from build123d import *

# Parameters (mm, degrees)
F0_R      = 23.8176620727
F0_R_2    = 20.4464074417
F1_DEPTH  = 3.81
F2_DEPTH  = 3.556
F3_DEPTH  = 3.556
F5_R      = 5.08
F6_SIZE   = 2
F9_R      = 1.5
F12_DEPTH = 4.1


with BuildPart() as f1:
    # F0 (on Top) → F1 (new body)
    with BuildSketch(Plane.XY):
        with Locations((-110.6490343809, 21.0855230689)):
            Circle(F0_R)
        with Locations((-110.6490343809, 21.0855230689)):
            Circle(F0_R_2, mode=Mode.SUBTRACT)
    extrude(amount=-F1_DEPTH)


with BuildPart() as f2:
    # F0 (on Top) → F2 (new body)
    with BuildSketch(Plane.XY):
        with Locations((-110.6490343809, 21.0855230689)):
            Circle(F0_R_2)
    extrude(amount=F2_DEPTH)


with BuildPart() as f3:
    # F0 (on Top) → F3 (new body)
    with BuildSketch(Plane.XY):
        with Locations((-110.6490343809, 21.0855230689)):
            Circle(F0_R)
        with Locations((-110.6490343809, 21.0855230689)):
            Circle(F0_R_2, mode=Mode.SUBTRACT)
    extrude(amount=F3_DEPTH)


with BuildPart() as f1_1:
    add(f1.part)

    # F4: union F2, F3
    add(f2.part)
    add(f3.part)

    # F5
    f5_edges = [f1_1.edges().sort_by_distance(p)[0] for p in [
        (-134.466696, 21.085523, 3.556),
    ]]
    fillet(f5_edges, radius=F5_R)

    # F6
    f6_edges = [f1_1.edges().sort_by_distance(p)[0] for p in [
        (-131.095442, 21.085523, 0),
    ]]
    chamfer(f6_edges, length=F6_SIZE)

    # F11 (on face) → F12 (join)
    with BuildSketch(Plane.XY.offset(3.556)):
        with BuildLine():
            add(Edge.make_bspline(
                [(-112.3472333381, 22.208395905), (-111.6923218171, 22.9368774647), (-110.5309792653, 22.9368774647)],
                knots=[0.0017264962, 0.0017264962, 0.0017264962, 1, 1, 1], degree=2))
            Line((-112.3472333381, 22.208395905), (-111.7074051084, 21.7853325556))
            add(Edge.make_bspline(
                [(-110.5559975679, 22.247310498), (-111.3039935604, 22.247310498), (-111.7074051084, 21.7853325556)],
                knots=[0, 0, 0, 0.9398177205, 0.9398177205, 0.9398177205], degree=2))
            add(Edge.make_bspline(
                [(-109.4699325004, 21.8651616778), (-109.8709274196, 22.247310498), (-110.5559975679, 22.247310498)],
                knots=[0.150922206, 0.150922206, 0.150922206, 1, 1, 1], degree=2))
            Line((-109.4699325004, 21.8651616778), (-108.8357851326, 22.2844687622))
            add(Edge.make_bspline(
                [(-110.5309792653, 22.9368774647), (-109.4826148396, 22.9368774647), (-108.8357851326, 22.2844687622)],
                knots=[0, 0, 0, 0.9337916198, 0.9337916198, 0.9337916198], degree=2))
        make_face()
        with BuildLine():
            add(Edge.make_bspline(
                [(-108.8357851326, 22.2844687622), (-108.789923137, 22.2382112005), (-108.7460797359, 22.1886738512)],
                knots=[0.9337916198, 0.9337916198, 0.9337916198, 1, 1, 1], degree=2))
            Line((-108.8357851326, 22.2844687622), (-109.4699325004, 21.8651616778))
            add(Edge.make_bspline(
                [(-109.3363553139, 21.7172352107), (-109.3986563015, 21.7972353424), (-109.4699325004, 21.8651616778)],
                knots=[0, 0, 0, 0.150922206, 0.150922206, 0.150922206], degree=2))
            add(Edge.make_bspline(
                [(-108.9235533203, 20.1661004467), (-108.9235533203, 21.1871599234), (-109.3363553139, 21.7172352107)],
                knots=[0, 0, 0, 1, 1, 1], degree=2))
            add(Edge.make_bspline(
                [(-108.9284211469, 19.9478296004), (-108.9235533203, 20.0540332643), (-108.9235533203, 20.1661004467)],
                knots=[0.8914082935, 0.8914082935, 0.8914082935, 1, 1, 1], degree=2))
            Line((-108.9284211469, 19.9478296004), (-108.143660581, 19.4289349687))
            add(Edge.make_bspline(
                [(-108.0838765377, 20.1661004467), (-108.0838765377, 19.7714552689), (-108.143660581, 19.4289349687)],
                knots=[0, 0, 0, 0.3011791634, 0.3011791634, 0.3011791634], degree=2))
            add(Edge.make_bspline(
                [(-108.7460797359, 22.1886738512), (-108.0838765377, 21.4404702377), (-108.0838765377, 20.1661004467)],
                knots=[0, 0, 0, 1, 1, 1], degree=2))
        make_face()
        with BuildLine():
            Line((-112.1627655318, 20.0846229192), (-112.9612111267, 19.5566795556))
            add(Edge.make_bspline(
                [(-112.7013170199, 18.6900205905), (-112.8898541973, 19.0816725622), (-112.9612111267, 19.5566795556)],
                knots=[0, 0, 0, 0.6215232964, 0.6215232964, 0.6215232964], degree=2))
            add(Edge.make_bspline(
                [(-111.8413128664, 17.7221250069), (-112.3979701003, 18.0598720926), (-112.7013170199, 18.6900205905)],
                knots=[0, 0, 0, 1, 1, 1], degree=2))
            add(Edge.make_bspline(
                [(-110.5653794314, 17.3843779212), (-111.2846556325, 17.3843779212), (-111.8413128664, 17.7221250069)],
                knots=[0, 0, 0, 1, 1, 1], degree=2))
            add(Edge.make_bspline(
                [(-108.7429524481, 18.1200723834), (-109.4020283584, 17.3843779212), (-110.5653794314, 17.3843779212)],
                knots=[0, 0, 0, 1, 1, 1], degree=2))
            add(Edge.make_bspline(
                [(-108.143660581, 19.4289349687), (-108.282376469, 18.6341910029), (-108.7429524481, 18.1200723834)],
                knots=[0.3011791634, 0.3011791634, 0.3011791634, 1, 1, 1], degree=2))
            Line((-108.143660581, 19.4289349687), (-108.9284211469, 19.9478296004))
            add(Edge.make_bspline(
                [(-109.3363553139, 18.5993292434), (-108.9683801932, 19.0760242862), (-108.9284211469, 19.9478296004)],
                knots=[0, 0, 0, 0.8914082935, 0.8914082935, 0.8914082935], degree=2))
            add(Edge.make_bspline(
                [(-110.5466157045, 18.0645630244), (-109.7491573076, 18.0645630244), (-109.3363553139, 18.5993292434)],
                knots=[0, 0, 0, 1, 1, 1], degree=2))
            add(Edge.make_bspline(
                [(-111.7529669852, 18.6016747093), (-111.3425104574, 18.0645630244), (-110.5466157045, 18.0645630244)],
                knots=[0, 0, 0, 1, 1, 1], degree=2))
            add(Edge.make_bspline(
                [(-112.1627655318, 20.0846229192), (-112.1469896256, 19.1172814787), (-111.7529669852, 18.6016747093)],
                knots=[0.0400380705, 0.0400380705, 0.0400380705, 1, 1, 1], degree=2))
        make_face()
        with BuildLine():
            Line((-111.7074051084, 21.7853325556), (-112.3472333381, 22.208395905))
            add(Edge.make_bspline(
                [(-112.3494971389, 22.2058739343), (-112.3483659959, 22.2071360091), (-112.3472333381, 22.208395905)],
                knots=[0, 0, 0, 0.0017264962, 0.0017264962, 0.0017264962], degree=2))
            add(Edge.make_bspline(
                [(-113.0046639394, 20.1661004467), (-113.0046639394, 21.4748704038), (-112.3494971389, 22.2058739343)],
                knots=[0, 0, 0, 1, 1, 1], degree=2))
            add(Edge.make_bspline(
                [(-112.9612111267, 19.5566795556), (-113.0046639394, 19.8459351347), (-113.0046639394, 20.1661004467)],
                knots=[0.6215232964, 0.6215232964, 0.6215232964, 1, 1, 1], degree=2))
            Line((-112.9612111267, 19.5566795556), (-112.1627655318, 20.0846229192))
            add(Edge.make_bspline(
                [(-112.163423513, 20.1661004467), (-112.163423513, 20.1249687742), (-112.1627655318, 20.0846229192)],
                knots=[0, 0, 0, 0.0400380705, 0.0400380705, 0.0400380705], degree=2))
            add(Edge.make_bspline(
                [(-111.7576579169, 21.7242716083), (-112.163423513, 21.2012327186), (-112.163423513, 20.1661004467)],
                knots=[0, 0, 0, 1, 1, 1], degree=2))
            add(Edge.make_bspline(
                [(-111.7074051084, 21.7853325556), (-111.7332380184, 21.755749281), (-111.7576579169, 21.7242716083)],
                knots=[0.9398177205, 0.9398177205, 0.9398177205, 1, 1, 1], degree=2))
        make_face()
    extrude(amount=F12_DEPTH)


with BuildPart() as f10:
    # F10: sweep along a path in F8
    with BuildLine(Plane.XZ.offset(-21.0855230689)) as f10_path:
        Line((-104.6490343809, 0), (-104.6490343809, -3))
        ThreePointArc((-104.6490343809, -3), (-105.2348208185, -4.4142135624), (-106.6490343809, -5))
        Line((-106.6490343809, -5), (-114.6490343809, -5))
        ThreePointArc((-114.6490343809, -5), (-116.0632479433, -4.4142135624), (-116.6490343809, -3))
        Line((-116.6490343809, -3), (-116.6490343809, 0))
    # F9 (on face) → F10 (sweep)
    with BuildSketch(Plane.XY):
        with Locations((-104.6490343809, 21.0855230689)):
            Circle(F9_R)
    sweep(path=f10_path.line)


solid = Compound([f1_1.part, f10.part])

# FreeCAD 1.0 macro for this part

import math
import FreeCAD as App
import Part
import Sketcher
from FreeCAD import Vector
Q = App.Units.Quantity


def edges_at(feature, points):
    """Names of the edges that pass closest to the given points."""
    edges = feature.Shape.Edges
    near = lambda p: min(range(len(edges)), key=lambda i: edges[i].distToShape(Part.Vertex(*p))[0])
    return sorted({f"Edge{near(p) + 1}" for p in points})

doc = App.newDocument("Part")
body = doc.addObject("PartDesign::Body", "Body")

sketch1 = doc.addObject("Sketcher::SketchObject", "Sketch")
body.addObject(sketch1)
sketch1.AttachmentSupport = (doc.XY_Plane, [""])
sketch1.MapMode = "FlatFace"
sketch1.addGeometry(Part.Circle(Vector(-111, 21, 0), Vector(0, 0, 1), 24), False)
sketch1.addGeometry(Part.Circle(Vector(-111, 21, 0), Vector(0, 0, 1), 20), False)
sketch1.addConstraint(Sketcher.Constraint("Coincident", 1, 3, 0, 3))
sketch1.addConstraint(Sketcher.Constraint("Diameter", 0, Q("47.635324 mm")))
sketch1.addConstraint(Sketcher.Constraint("Diameter", 1, Q("40.892815 mm")))
sketch1.addConstraint(Sketcher.Constraint("DistanceX", 0, 3, -1, 1, Q("110.649034 mm")))
sketch1.addConstraint(Sketcher.Constraint("DistanceY", -1, 1, 0, 3, Q("21.085523 mm")))
pad1 = doc.addObject("PartDesign::Pad", "Pad")
body.addObject(pad1)
pad1.Profile = sketch1
pad1.Length = 3.81
pad1.Reversed = True
body2 = doc.addObject("PartDesign::Body", "Body001")

sketch2 = doc.addObject("Sketcher::SketchObject", "Sketch001")
body2.addObject(sketch2)
sketch2.AttachmentSupport = (doc.getObject("XY_Plane001"), [""])
sketch2.MapMode = "FlatFace"
sketch2.addGeometry(Part.Circle(Vector(-111, 21, 0), Vector(0, 0, 1), 20), False)
sketch2.addConstraint(Sketcher.Constraint("Diameter", 0, Q("40.892815 mm")))
sketch2.addConstraint(Sketcher.Constraint("DistanceX", 0, 3, -1, 1, Q("110.649034 mm")))
sketch2.addConstraint(Sketcher.Constraint("DistanceY", -1, 1, 0, 3, Q("21.085523 mm")))
pad2 = doc.addObject("PartDesign::Pad", "Pad001")
body2.addObject(pad2)
pad2.Profile = sketch2
pad2.Length = 3.556
body3 = doc.addObject("PartDesign::Body", "Body002")

sketch3 = doc.addObject("Sketcher::SketchObject", "Sketch002")
body3.addObject(sketch3)
sketch3.AttachmentSupport = (doc.getObject("XY_Plane002"), [""])
sketch3.MapMode = "FlatFace"
sketch3.addGeometry(Part.Circle(Vector(-111, 21, 0), Vector(0, 0, 1), 24), False)
sketch3.addGeometry(Part.Circle(Vector(-111, 21, 0), Vector(0, 0, 1), 20), False)
sketch3.addConstraint(Sketcher.Constraint("Coincident", 1, 3, 0, 3))
sketch3.addConstraint(Sketcher.Constraint("Diameter", 0, Q("47.635324 mm")))
sketch3.addConstraint(Sketcher.Constraint("Diameter", 1, Q("40.892815 mm")))
sketch3.addConstraint(Sketcher.Constraint("DistanceX", 0, 3, -1, 1, Q("110.649034 mm")))
sketch3.addConstraint(Sketcher.Constraint("DistanceY", -1, 1, 0, 3, Q("21.085523 mm")))
pad3 = doc.addObject("PartDesign::Pad", "Pad002")
body3.addObject(pad3)
pad3.Profile = sketch3
pad3.Length = 3.556
body.AllowCompound = True
doc.recompute()

boolean = doc.addObject("PartDesign::Boolean", "Boolean")
body.addObject(boolean)
boolean.Type = "Fuse"
boolean.addObjects([body2])
doc.recompute()

boolean2 = doc.addObject("PartDesign::Boolean", "Boolean001")
body.addObject(boolean2)
boolean2.Type = "Fuse"
boolean2.addObjects([body3])
doc.recompute()

fillet = doc.addObject("PartDesign::Fillet", "Fillet")
body.addObject(fillet)
fillet.Base = (boolean2, edges_at(boolean2, [(-134.467, 21.086, 3.556)]))
fillet.Radius = 5.08
doc.recompute()

chamfer = doc.addObject("PartDesign::Chamfer", "Chamfer")
body.addObject(chamfer)
chamfer.Base = (fillet, edges_at(fillet, [(-131.095, 21.086, 0)]))
chamfer.Size = 2

sketch4 = doc.addObject("Sketcher::SketchObject", "Sketch003")
body.addObject(sketch4)
sketch4.AttachmentSupport = (doc.XY_Plane, [""])
sketch4.MapMode = "FlatFace"
sketch4.AttachmentOffset = App.Placement(Vector(0, 0, 3.556), App.Rotation())
sketch4.addGeometry(Part.BSplineCurve([Vector(-112.347233, 22.208396, 0), Vector(-111.692322, 22.936877, 0), Vector(-109.482615, 22.936877, 0), Vector(-108.835785, 22.284469, 0)], [3, 1, 3], [0.001726496, 1, 1.901159117], False, 2, [1, 1, 1, 1], False), False)
sketch4.addGeometry(Part.BSplineCurve([Vector(-112.349497, 22.205874, 0), Vector(-112.348366, 22.207136, 0), Vector(-112.347233, 22.208396, 0)], [3, 3], [0, 0.001726496], False, 2, [1, 1, 1], False), False)
sketch4.addGeometry(Part.BSplineCurve([Vector(-112.961211, 19.55668, 0), Vector(-113.004664, 19.845935, 0), Vector(-113.004664, 21.47487, 0), Vector(-112.349497, 22.205874, 0)], [3, 1, 3], [0.621523296, 1, 2.547134935], False, 2, [1, 1, 1, 1], False), False)
sketch4.addGeometry(Part.BSplineCurve([Vector(-112.701317, 18.690021, 0), Vector(-112.889854, 19.081673, 0), Vector(-112.961211, 19.55668, 0)], [3, 3], [0, 0.621523296], False, 2, [1, 1, 1], False), False)
sketch4.addGeometry(Part.BSplineCurve([Vector(-108.742952, 18.120072, 0), Vector(-109.402028, 17.384378, 0), Vector(-111.284656, 17.384378, 0), Vector(-112.39797, 18.059872, 0), Vector(-112.701317, 18.690021, 0)], [3, 1, 1, 3], [0, 1, 1.61827957, 2.23655914], False, 2, [1, 1, 1, 1, 1], False), False)
sketch4.addGeometry(Part.BSplineCurve([Vector(-108.143661, 19.428935, 0), Vector(-108.282376, 18.634191, 0), Vector(-108.742952, 18.120072, 0)], [3, 3], [0.301179163, 1], False, 2, [1, 1, 1], False), False)
sketch4.addGeometry(Part.BSplineCurve([Vector(-108.74608, 22.188674, 0), Vector(-108.083877, 21.44047, 0), Vector(-108.083877, 19.771455, 0), Vector(-108.143661, 19.428935, 0)], [3, 1, 3], [0, 1, 1.309678698], False, 2, [1, 1, 1, 1], False), False)
sketch4.addGeometry(Part.BSplineCurve([Vector(-108.835785, 22.284469, 0), Vector(-108.789923, 22.238211, 0), Vector(-108.74608, 22.188674, 0)], [3, 3], [0.93379162, 1], False, 2, [1, 1, 1], False), False)
sketch4.addGeometry(Part.BSplineCurve([Vector(-112.162766, 20.084623, 0), Vector(-112.14699, 19.117281, 0), Vector(-111.752967, 18.601675, 0)], [3, 3], [0.040038071, 1], False, 2, [1, 1, 1], False), False)
sketch4.addGeometry(Part.BSplineCurve([Vector(-111.757658, 21.724272, 0), Vector(-112.163424, 21.201233, 0), Vector(-112.163424, 20.124969, 0), Vector(-112.162766, 20.084623, 0)], [3, 1, 3], [0, 1, 1.039735668], False, 2, [1, 1, 1, 1], False), False)
sketch4.addGeometry(Part.BSplineCurve([Vector(-111.707405, 21.785333, 0), Vector(-111.733238, 21.755749, 0), Vector(-111.757658, 21.724272, 0)], [3, 3], [0.939817721, 1], False, 2, [1, 1, 1], False), False)
sketch4.addGeometry(Part.BSplineCurve([Vector(-109.469932, 21.865162, 0), Vector(-109.870927, 22.24731, 0), Vector(-111.303994, 22.24731, 0), Vector(-111.707405, 21.785333, 0)], [3, 1, 3], [0.150922206, 1, 1.927068255], False, 2, [1, 1, 1, 1], False), False)
sketch4.addGeometry(Part.BSplineCurve([Vector(-109.336355, 21.717235, 0), Vector(-109.398656, 21.797235, 0), Vector(-109.469932, 21.865162, 0)], [3, 3], [0, 0.150922206], False, 2, [1, 1, 1], False), False)
sketch4.addGeometry(Part.BSplineCurve([Vector(-108.928421, 19.94783, 0), Vector(-108.923553, 20.054033, 0), Vector(-108.923553, 21.18716, 0), Vector(-109.336355, 21.717235, 0)], [3, 1, 3], [0.891408293, 1, 1.989393939], False, 2, [1, 1, 1, 1], False), False)
sketch4.addGeometry(Part.BSplineCurve([Vector(-109.336355, 18.599329, 0), Vector(-108.96838, 19.076024, 0), Vector(-108.928421, 19.94783, 0)], [3, 3], [0, 0.891408293], False, 2, [1, 1, 1], False), False)
sketch4.addGeometry(Part.BSplineCurve([Vector(-111.752967, 18.601675, 0), Vector(-111.34251, 18.064563, 0), Vector(-109.749157, 18.064563, 0), Vector(-109.336355, 18.599329, 0)], [3, 1, 3], [0, 1, 2.001964637], False, 2, [1, 1, 1, 1], False), False)
sketch4.addConstraint(Sketcher.Constraint("Block", 0))
sketch4.addConstraint(Sketcher.Constraint("Block", 1))
sketch4.addConstraint(Sketcher.Constraint("Block", 2))
sketch4.addConstraint(Sketcher.Constraint("Block", 3))
sketch4.addConstraint(Sketcher.Constraint("Block", 4))
sketch4.addConstraint(Sketcher.Constraint("Block", 5))
sketch4.addConstraint(Sketcher.Constraint("Block", 6))
sketch4.addConstraint(Sketcher.Constraint("Block", 7))
sketch4.addConstraint(Sketcher.Constraint("Block", 8))
sketch4.addConstraint(Sketcher.Constraint("Block", 9))
sketch4.addConstraint(Sketcher.Constraint("Block", 10))
sketch4.addConstraint(Sketcher.Constraint("Block", 11))
sketch4.addConstraint(Sketcher.Constraint("Block", 12))
sketch4.addConstraint(Sketcher.Constraint("Block", 13))
sketch4.addConstraint(Sketcher.Constraint("Block", 14))
sketch4.addConstraint(Sketcher.Constraint("Block", 15))
pad4 = doc.addObject("PartDesign::Pad", "Pad003")
body.addObject(pad4)
pad4.Profile = sketch4
pad4.Length = 4.1
body4 = doc.addObject("PartDesign::Body", "Body003")

sketch5 = doc.addObject("Sketcher::SketchObject", "Sketch004")
body4.addObject(sketch5)
sketch5.AttachmentSupport = (doc.getObject("XY_Plane003"), [""])
sketch5.MapMode = "FlatFace"
sketch5.addGeometry(Part.Circle(Vector(-104.6, 21.1, 0), Vector(0, 0, 1), 1.5), False)
sketch5.addConstraint(Sketcher.Constraint("Diameter", 0, Q("3 mm")))
sketch5.addConstraint(Sketcher.Constraint("DistanceX", 0, 3, -1, 1, Q("104.649034 mm")))
sketch5.addConstraint(Sketcher.Constraint("DistanceY", -1, 1, 0, 3, Q("21.085523 mm")))

sketch6 = doc.addObject("Sketcher::SketchObject", "Sketch005")
body4.addObject(sketch6)
sketch6.AttachmentSupport = (doc.getObject("XZ_Plane003"), [""])
sketch6.MapMode = "FlatFace"
sketch6.AttachmentOffset = App.Placement(Vector(0, 0, -21.085523), App.Rotation())
sketch6.addGeometry(Part.LineSegment(Vector(-104.6, 0, 0), Vector(-104.6, -3, 0)), False)
sketch6.addGeometry(Part.ArcOfCircle(Part.Circle(Vector(-106.6, -3, 0), Vector(0, 0, 1), 2), math.radians(-90), math.radians(0)), False)
sketch6.addGeometry(Part.LineSegment(Vector(-106.6, -5, 0), Vector(-114.6, -5, 0)), False)
sketch6.addGeometry(Part.ArcOfCircle(Part.Circle(Vector(-114.6, -3, 0), Vector(0, 0, 1), 2), math.radians(180), math.radians(270)), False)
sketch6.addGeometry(Part.LineSegment(Vector(-116.6, -3, 0), Vector(-116.6, 0, 0)), False)
sketch6.addConstraint(Sketcher.Constraint("Tangent", 0, 2, 1, 2))
sketch6.addConstraint(Sketcher.Constraint("Tangent", 1, 1, 2, 1))
sketch6.addConstraint(Sketcher.Constraint("Tangent", 2, 2, 3, 2))
sketch6.addConstraint(Sketcher.Constraint("Tangent", 3, 1, 4, 1))
sketch6.addConstraint(Sketcher.Constraint("Vertical", 0))
sketch6.addConstraint(Sketcher.Constraint("Horizontal", 2))
sketch6.addConstraint(Sketcher.Constraint("Vertical", 4))
sketch6.addConstraint(Sketcher.Constraint("Equal", 1, 3))
sketch6.addConstraint(Sketcher.Constraint("PointOnObject", 0, 1, -1))
sketch6.addConstraint(Sketcher.Constraint("PointOnObject", 4, 2, -1))
sketch6.addConstraint(Sketcher.Constraint("Radius", 1, Q("2 mm")))
sketch6.addConstraint(Sketcher.Constraint("DistanceX", 2, 2, 2, 1, Q("8 mm")))
sketch6.addConstraint(Sketcher.Constraint("DistanceY", 0, 2, 0, 1, Q("3 mm")))
sketch6.addConstraint(Sketcher.Constraint("DistanceX", 1, 3, -1, 1, Q("106.649034 mm")))
doc.recompute()

additivepipe = doc.addObject("PartDesign::AdditivePipe", "AdditivePipe")
body4.addObject(additivepipe)
additivepipe.Profile = sketch5
additivepipe.Spine = (sketch6, ["Edge1", "Edge2", "Edge3", "Edge4", "Edge5"])

doc.recompute()
